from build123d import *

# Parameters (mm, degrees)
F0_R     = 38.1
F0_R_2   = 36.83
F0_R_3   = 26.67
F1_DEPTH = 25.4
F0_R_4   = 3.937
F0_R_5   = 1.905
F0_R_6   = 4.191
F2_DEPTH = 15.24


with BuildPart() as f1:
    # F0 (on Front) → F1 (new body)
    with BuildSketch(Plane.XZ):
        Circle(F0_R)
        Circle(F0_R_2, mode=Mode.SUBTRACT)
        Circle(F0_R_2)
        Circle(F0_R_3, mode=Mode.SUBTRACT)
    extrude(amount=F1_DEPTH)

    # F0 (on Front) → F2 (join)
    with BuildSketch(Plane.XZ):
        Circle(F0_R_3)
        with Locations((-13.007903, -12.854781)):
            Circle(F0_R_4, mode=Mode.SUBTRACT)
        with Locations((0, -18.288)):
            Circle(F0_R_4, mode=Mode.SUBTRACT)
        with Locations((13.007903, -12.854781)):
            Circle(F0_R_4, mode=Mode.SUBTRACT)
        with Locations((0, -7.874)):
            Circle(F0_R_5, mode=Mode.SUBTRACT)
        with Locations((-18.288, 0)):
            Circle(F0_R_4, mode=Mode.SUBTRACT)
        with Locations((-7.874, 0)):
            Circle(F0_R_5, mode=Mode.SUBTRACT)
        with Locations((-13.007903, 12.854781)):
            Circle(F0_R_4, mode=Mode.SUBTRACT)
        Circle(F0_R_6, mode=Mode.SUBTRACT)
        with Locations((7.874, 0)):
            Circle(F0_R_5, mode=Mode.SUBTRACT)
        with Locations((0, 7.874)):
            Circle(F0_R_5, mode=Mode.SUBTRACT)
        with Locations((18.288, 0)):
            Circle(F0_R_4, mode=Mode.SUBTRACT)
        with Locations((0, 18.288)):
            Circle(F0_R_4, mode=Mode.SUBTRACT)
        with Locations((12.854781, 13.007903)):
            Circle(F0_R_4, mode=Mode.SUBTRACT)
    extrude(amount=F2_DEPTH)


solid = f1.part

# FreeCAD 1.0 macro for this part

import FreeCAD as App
import Part
import Sketcher

V = App.Vector
Q = App.Units.Quantity

doc = App.newDocument("Part")
params = doc.addObject("Spreadsheet::Sheet", "Params")
for row, (alias, value) in enumerate([
    ("sketch1_diameter", "3 in"),
    ("sketch1_diameter2", "2.1 in"),
    ("pad1_length", "1 in"),
    ("sketch2_diameter", "2.1 in"),
    ("sketch2_diameter2", "0.31 in"),
    ("sketch2_diameter3", "0.15 in"),
    ("sketch2_diameter4", "0.33 in"),
    ("pad2_length", "0.6 in"),
], start=1):
    params.set(f"A{row}", alias)
    params.set(f"B{row}", "=" + value)
    params.setAlias(f"B{row}", alias)

body = doc.addObject("PartDesign::Body", "Body")

sketch1 = body.newObject("Sketcher::SketchObject", "Sketch")
sketch1.AttachmentSupport = (doc.getObject("XZ_Plane"), [""])
sketch1.MapMode = "FlatFace"
sketch1.addGeometry(Part.Circle(V(0, 0, 0), V(0, 0, 1), 38), False)
sketch1.addGeometry(Part.Circle(V(0, 0, 0), V(0, 0, 1), 27), False)
sketch1.addConstraint(Sketcher.Constraint("Coincident", 0, 3, -1, 1))
sketch1.addConstraint(Sketcher.Constraint("Coincident", 1, 3, -1, 1))
sketch1.addConstraint(Sketcher.Constraint("Diameter", 0, Q("3 in")))
sketch1.addConstraint(Sketcher.Constraint("Diameter", 1, Q("2.1 in")))
sketch1.setExpression("Constraints[2]", "Params.sketch1_diameter")
sketch1.setExpression("Constraints[3]", "Params.sketch1_diameter2")
pad1 = body.newObject("PartDesign::Pad", "Pad")
pad1.Profile = sketch1
pad1.setExpression("Length", "Params.pad1_length")

sketch2 = body.newObject("Sketcher::SketchObject", "Sketch001")
sketch2.AttachmentSupport = (doc.getObject("XZ_Plane"), [""])
sketch2.MapMode = "FlatFace"
sketch2.addGeometry(Part.Circle(V(0, 0, 0), V(0, 0, 1), 26.7), False)
sketch2.addGeometry(Part.Circle(V(-13, -12.9, 0), V(0, 0, 1), 3.9), False)
sketch2.addGeometry(Part.Circle(V(0, -18.3, 0), V(0, 0, 1), 3.9), False)
sketch2.addGeometry(Part.Circle(V(0, -7.9, 0), V(0, 0, 1), 1.9), False)
sketch2.addGeometry(Part.Circle(V(13, -12.9, 0), V(0, 0, 1), 3.9), False)
sketch2.addGeometry(Part.Circle(V(-18.3, 0, 0), V(0, 0, 1), 3.9), False)
sketch2.addGeometry(Part.Circle(V(-7.9, 0, 0), V(0, 0, 1), 1.9), False)
sketch2.addGeometry(Part.Circle(V(0, 0, 0), V(0, 0, 1), 4.2), False)
sketch2.addGeometry(Part.Circle(V(0, 7.9, 0), V(0, 0, 1), 1.9), False)
sketch2.addGeometry(Part.Circle(V(-13, 12.9, 0), V(0, 0, 1), 3.9), False)
sketch2.addGeometry(Part.Circle(V(0, 18.3, 0), V(0, 0, 1), 3.9), False)
sketch2.addGeometry(Part.Circle(V(7.9, 0, 0), V(0, 0, 1), 1.9), False)
sketch2.addGeometry(Part.Circle(V(18.3, 0, 0), V(0, 0, 1), 3.9), False)
sketch2.addGeometry(Part.Circle(V(12.9, 13, 0), V(0, 0, 1), 3.9), False)
sketch2.addConstraint(Sketcher.Constraint("Coincident", 0, 3, -1, 1))
sketch2.addConstraint(Sketcher.Constraint("Coincident", 7, 3, -1, 1))
sketch2.addConstraint(Sketcher.Constraint("Equal", 1, 2))
sketch2.addConstraint(Sketcher.Constraint("Equal", 2, 4))
sketch2.addConstraint(Sketcher.Constraint("Equal", 4, 5))
sketch2.addConstraint(Sketcher.Constraint("Equal", 3, 6))
sketch2.addConstraint(Sketcher.Constraint("Equal", 6, 8))
sketch2.addConstraint(Sketcher.Constraint("Equal", 5, 9))
sketch2.addConstraint(Sketcher.Constraint("Equal", 9, 10))
sketch2.addConstraint(Sketcher.Constraint("Equal", 8, 11))
sketch2.addConstraint(Sketcher.Constraint("Equal", 10, 12))
sketch2.addConstraint(Sketcher.Constraint("Equal", 12, 13))
sketch2.addConstraint(Sketcher.Constraint("Symmetric", 3, 3, 8, 3, -1, 1))
sketch2.addConstraint(Sketcher.Constraint("Symmetric", 4, 3, 9, 3, -1, 1))
sketch2.addConstraint(Sketcher.Constraint("Symmetric", 2, 3, 10, 3, -1, 1))
sketch2.addConstraint(Sketcher.Constraint("Symmetric", 6, 3, 11, 3, -1, 1))
sketch2.addConstraint(Sketcher.Constraint("Symmetric", 5, 3, 12, 3, -1, 1))
sketch2.addConstraint(Sketcher.Constraint("Symmetric", 1, 3, 4, 3, -2))
sketch2.addConstraint(Sketcher.Constraint("PointOnObject", 2, 3, -2))
sketch2.addConstraint(Sketcher.Constraint("PointOnObject", 3, 3, -2))
sketch2.addConstraint(Sketcher.Constraint("PointOnObject", 5, 3, -1))
sketch2.addConstraint(Sketcher.Constraint("PointOnObject", 6, 3, -1))
sketch2.addConstraint(Sketcher.Constraint("Diameter", 0, Q("2.1 in")))
sketch2.addConstraint(Sketcher.Constraint("Diameter", 1, Q("0.31 in")))
sketch2.addConstraint(Sketcher.Constraint("Diameter", 3, Q("0.15 in")))
sketch2.addConstraint(Sketcher.Constraint("Diameter", 7, Q("0.33 in")))
sketch2.addConstraint(Sketcher.Constraint("DistanceY", 2, 3, -1, 1, Q("0.72 in")))
sketch2.addConstraint(Sketcher.Constraint("DistanceY", 3, 3, -1, 1, Q("0.31 in")))
sketch2.addConstraint(Sketcher.Constraint("DistanceX", 5, 3, -1, 1, Q("0.72 in")))
sketch2.addConstraint(Sketcher.Constraint("DistanceX", 6, 3, -1, 1, Q("0.31 in")))
sketch2.addConstraint(Sketcher.Constraint("DistanceY", 1, 3, -1, 1, Q("12.854781 mm")))
sketch2.addConstraint(Sketcher.Constraint("DistanceX", -1, 1, 13, 3, Q("12.854781 mm")))
sketch2.addConstraint(Sketcher.Constraint("DistanceX", 1, 3, -1, 1, Q("13.007903 mm")))
sketch2.addConstraint(Sketcher.Constraint("DistanceY", -1, 1, 13, 3, Q("13.007903 mm")))
sketch2.setExpression("Constraints[22]", "Params.sketch2_diameter")
sketch2.setExpression("Constraints[23]", "Params.sketch2_diameter2")
sketch2.setExpression("Constraints[24]", "Params.sketch2_diameter3")
sketch2.setExpression("Constraints[25]", "Params.sketch2_diameter4")
pad2 = body.newObject("PartDesign::Pad", "Pad001")
pad2.Profile = sketch2
pad2.setExpression("Length", "Params.pad2_length")

doc.recompute()
